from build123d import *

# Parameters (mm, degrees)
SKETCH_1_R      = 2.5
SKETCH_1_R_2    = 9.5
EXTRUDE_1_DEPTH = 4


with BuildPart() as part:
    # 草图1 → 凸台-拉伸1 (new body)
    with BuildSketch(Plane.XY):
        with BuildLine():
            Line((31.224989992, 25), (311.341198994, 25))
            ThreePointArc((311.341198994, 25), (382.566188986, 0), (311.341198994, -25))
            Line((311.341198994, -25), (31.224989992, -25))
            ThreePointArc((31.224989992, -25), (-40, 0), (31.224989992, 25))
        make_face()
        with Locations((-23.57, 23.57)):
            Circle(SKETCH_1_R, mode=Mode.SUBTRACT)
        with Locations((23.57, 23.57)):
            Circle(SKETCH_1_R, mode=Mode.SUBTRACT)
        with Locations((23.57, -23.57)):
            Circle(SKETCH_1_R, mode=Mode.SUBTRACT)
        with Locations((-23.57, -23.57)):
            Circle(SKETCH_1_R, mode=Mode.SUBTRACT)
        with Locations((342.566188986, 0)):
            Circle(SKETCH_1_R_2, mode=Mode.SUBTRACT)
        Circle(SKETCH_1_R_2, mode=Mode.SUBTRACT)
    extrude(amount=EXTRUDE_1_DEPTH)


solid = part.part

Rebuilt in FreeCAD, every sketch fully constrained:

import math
import FreeCAD as App
import Part
import Sketcher

doc = App.newDocument("Part")
params = doc.addObject("Spreadsheet::Sheet", "Params")
for row, (alias, value) in enumerate([
    ("sketch1_diameter", "5 mm"),
    ("sketch1_diameter2", "19 mm"),
    ("sketch1_radius", "40 mm"),
    ("pad1_length", "4 mm"),
], start=1):
    params.set(f"A{row}", alias)
    params.set(f"B{row}", "=" + value)
    params.setAlias(f"B{row}", alias)

body = doc.addObject("PartDesign::Body", "Body")

# Sketch on XY plane
sketch1 = body.newObject("Sketcher::SketchObject", "Sketch")
sketch1.AttachmentSupport = (doc.getObject("XY_Plane"), [""])
sketch1.MapMode = "FlatFace"
sketch1.addGeometry(Part.LineSegment(App.Vector(311.3, 25, 0), App.Vector(31.2, 25, 0)), False)
sketch1.addGeometry(Part.ArcOfCircle(Part.Circle(App.Vector(0, 0, 0), App.Vector(0, 0, 1), 40), math.radians(39), math.radians(321)), False)
sketch1.addGeometry(Part.LineSegment(App.Vector(31.2, -25, 0), App.Vector(311.3, -25, 0)), False)
sketch1.addGeometry(Part.ArcOfCircle(Part.Circle(App.Vector(342.6, 0, 0), App.Vector(0, 0, 1), 40), math.radians(-141), math.radians(141)), False)
sketch1.addGeometry(Part.Circle(App.Vector(23.6, -23.6, 0), App.Vector(0, 0, 1), 2.5), False)
sketch1.addGeometry(Part.Circle(App.Vector(-23.6, -23.6, 0), App.Vector(0, 0, 1), 2.5), False)
sketch1.addGeometry(Part.Circle(App.Vector(342.6, 0, 0), App.Vector(0, 0, 1), 9.5), False)
sketch1.addGeometry(Part.Circle(App.Vector(0, 0, 0), App.Vector(0, 0, 1), 9.5), False)
sketch1.addGeometry(Part.Circle(App.Vector(23.6, 23.6, 0), App.Vector(0, 0, 1), 2.5), False)
sketch1.addGeometry(Part.Circle(App.Vector(-23.6, 23.6, 0), App.Vector(0, 0, 1), 2.5), False)
sketch1.addConstraint(Sketcher.Constraint("Coincident", 0, 2, 1, 1))
sketch1.addConstraint(Sketcher.Constraint("Coincident", 1, 2, 2, 1))
sketch1.addConstraint(Sketcher.Constraint("Coincident", 2, 2, 3, 1))
sketch1.addConstraint(Sketcher.Constraint("Coincident", 3, 2, 0, 1))
sketch1.addConstraint(Sketcher.Constraint("Horizontal", 0))
sketch1.addConstraint(Sketcher.Constraint("Horizontal", 2))
sketch1.addConstraint(Sketcher.Constraint("Coincident", 1, 3, -1, 1))
sketch1.addConstraint(Sketcher.Constraint("Coincident", 7, 3, -1, 1))
sketch1.addConstraint(Sketcher.Constraint("Coincident", 6, 3, 3, 3))
sketch1.addConstraint(Sketcher.Constraint("Equal", 1, 3))
sketch1.addConstraint(Sketcher.Constraint("Equal", 4, 5))
sketch1.addConstraint(Sketcher.Constraint("Equal", 6, 7))
sketch1.addConstraint(Sketcher.Constraint("Equal", 5, 8))
sketch1.addConstraint(Sketcher.Constraint("Equal", 8, 9))
sketch1.addConstraint(Sketcher.Constraint("Symmetric", 5, 3, 8, 3, -1, 1))
sketch1.addConstraint(Sketcher.Constraint("Symmetric", 4, 3, 9, 3, -1, 1))
sketch1.addConstraint(Sketcher.Constraint("Symmetric", 4, 3, 5, 3, -2))
sketch1.addConstraint(Sketcher.Constraint("Symmetric", 2, 2, 3, 2, -1))
sketch1.addConstraint(Sketcher.Constraint("Diameter", 4, 5.0))
sketch1.addConstraint(Sketcher.Constraint("Diameter", 6, 19.0))
sketch1.addConstraint(Sketcher.Constraint("Radius", 1, 40.0))
sketch1.addConstraint(Sketcher.Constraint("DistanceY", -1, 1, 0, 2, 25.0))
sketch1.addConstraint(Sketcher.Constraint("DistanceX", -1, 1, 4, 3, 23.57))
sketch1.addConstraint(Sketcher.Constraint("DistanceY", 4, 3, -1, 1, 23.57))
sketch1.addConstraint(Sketcher.Constraint("DistanceX", 0, 2, 0, 1, 280.116209))
sketch1.setExpression("Constraints[18]", "Params.sketch1_diameter")
sketch1.setExpression("Constraints[19]", "Params.sketch1_diameter2")
sketch1.setExpression("Constraints[20]", "Params.sketch1_radius")
pad1 = body.newObject("PartDesign::Pad", "Pad")
pad1.Profile = sketch1
pad1.setExpression("Length", "Params.pad1_length")

doc.recompute()
